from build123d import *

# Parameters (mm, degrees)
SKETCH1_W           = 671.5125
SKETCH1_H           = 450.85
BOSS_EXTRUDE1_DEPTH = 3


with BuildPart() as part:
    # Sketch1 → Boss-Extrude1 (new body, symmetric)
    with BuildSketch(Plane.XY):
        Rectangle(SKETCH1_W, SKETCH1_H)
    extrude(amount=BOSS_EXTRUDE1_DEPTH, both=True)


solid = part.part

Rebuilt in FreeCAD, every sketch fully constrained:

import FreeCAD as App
import Part
import Sketcher

V = App.Vector
Q = App.Units.Quantity

doc = App.newDocument("Part")
body = doc.addObject("PartDesign::Body", "Body")

# Sketch on XY plane
sketch1 = body.newObject("Sketcher::SketchObject", "Sketch")
sketch1.AttachmentSupport = (doc.getObject("XY_Plane"), [""])
sketch1.MapMode = "FlatFace"
sketch1.addGeometry([
    Part.LineSegment(V(-335.75625, 225.425, 0), V(-335.75625, -225.425, 0)),
    Part.LineSegment(V(-335.75625, -225.425, 0), V(335.75625, -225.425, 0)),
    Part.LineSegment(V(335.75625, -225.425, 0), V(335.75625, 225.425, 0)),
    Part.LineSegment(V(335.75625, 225.425, 0), V(-335.75625, 225.425, 0)),
], False)
sketch1.addConstraint([
    Sketcher.Constraint("Coincident", 0, 2, 1, 1),
    Sketcher.Constraint("Coincident", 1, 2, 2, 1),
    Sketcher.Constraint("Coincident", 2, 2, 3, 1),
    Sketcher.Constraint("Coincident", 3, 2, 0, 1),
    Sketcher.Constraint("Vertical", 0),
    Sketcher.Constraint("Horizontal", 1),
    Sketcher.Constraint("Vertical", 2),
    Sketcher.Constraint("Horizontal", 3),
    Sketcher.Constraint("Symmetric", 0, 2, 2, 2, -1, 1),
    Sketcher.Constraint("DistanceY", 0, 2, 0, 1, Q("17.75 in")),
    Sketcher.Constraint("DistanceX", 1, 1, 1, 2, Q("26.4375 in")),
])
pad1 = body.newObject("PartDesign::Pad", "Pad")
pad1.Profile = sketch1
pad1.Length = 6
pad1.Midplane = True

doc.recompute()
